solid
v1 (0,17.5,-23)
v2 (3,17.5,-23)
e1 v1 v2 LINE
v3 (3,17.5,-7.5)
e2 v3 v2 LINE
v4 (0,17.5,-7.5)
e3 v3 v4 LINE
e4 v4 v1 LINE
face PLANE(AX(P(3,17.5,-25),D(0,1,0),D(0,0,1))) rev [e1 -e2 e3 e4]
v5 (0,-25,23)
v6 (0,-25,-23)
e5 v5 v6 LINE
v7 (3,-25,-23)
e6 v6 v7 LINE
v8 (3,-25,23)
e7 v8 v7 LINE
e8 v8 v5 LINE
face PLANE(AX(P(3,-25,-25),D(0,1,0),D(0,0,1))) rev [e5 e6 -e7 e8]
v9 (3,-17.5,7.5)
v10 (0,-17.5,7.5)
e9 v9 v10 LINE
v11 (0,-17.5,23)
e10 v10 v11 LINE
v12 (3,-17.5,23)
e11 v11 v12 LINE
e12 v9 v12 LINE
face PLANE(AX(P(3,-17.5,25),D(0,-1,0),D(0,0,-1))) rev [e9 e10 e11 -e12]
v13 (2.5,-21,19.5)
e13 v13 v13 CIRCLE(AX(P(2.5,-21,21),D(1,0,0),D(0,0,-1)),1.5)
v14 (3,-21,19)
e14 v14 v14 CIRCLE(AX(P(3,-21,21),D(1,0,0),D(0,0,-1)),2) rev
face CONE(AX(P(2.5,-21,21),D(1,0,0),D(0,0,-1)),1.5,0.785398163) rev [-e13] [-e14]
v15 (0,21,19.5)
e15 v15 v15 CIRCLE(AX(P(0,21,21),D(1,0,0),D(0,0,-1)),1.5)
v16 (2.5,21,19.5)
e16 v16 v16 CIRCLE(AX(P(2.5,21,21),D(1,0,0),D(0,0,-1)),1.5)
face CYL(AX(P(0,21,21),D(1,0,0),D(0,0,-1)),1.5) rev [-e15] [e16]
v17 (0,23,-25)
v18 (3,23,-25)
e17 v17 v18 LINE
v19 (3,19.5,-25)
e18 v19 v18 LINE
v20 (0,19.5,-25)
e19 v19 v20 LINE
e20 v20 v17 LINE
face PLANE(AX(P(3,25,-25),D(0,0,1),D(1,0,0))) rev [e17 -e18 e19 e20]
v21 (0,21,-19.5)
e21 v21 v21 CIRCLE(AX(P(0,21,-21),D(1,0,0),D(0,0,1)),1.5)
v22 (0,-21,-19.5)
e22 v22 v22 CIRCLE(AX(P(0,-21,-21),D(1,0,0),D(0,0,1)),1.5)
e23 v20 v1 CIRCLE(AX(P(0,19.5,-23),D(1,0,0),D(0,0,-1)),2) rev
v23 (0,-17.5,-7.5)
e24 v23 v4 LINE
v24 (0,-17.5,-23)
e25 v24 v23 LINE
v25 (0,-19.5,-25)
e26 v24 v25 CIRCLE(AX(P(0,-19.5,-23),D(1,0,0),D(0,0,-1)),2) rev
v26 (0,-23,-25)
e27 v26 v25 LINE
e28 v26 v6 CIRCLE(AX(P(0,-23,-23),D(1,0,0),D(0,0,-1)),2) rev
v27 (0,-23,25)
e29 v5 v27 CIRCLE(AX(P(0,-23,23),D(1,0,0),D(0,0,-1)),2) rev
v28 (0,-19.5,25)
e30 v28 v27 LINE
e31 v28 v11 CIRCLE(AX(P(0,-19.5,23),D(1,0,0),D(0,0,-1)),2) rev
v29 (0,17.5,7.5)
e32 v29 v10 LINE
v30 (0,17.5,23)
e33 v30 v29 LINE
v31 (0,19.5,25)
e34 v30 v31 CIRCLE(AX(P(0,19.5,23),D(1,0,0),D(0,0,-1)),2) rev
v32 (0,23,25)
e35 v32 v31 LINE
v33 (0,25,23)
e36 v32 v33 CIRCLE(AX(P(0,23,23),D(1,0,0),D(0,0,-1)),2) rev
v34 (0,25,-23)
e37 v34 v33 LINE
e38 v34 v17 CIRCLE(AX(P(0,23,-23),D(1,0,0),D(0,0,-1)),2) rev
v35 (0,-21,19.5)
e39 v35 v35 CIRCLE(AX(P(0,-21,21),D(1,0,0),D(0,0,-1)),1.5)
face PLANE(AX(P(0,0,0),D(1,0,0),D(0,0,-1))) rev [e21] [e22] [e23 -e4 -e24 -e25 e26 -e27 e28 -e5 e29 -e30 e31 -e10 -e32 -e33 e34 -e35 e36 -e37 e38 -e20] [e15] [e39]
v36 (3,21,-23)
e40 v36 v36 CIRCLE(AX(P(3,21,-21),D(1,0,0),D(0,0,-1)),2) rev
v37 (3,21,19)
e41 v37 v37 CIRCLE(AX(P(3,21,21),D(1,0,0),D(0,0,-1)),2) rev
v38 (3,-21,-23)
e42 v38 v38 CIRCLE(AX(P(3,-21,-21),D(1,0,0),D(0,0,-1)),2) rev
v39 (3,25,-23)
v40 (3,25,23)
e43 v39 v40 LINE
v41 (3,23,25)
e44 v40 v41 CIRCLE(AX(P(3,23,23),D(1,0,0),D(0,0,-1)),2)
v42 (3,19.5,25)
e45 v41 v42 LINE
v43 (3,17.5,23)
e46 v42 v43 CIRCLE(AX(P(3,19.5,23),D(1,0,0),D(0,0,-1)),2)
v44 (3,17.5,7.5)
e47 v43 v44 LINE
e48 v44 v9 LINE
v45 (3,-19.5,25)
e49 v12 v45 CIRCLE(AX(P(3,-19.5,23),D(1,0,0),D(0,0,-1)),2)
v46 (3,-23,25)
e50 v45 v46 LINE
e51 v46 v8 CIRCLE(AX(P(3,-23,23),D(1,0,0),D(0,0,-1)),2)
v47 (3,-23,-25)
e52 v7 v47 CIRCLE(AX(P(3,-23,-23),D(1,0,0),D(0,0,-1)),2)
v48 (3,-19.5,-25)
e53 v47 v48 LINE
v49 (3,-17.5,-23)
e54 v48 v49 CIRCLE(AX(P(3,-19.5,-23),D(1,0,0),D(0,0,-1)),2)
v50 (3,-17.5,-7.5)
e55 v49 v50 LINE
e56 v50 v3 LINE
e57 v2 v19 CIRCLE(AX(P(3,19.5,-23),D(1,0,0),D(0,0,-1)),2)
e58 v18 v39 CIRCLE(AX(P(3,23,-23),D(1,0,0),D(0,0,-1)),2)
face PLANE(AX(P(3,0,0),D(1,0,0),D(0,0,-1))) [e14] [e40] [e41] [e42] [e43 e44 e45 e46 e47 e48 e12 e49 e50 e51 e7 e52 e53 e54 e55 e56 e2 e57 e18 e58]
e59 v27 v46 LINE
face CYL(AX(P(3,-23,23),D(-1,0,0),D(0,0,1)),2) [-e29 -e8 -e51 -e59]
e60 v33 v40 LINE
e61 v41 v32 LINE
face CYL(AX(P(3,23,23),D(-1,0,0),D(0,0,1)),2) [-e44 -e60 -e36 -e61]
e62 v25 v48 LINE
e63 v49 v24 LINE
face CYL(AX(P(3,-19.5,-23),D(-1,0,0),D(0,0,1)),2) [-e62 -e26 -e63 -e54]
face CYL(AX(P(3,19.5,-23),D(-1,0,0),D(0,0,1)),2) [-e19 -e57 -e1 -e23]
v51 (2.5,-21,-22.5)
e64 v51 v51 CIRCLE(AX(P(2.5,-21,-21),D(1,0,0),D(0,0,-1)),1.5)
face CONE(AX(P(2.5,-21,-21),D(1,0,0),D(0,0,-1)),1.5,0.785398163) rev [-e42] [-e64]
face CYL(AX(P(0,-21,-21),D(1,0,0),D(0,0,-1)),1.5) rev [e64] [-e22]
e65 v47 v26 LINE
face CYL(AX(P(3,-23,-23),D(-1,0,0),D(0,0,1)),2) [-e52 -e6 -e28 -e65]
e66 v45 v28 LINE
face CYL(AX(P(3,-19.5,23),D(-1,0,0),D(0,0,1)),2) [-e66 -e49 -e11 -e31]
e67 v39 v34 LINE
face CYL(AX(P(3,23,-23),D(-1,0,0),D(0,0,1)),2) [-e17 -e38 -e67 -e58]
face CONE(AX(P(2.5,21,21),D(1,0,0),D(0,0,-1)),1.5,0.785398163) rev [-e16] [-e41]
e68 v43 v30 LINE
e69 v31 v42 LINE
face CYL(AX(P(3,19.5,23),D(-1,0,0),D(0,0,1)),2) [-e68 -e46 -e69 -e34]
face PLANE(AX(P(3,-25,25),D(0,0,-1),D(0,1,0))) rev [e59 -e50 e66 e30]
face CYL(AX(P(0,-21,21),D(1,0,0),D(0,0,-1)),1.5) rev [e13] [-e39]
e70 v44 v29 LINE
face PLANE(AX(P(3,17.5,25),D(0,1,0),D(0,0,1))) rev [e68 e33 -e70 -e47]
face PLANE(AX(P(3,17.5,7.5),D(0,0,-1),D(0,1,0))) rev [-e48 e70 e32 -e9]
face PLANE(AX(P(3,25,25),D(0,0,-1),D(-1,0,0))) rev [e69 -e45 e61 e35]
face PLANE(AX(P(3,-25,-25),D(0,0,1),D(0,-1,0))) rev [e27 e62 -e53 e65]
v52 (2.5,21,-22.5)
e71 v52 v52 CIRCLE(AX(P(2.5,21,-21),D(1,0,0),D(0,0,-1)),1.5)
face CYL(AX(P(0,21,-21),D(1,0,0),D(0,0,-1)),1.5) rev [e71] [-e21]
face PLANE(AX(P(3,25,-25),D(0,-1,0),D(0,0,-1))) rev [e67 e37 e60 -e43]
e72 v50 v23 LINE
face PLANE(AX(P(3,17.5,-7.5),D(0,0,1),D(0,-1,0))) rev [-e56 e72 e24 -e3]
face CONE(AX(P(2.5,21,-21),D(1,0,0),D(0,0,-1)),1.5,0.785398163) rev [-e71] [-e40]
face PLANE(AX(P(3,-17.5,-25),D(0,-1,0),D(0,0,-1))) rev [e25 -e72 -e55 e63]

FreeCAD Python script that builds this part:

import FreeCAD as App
import Part
import Sketcher


def edges_at(feature, points):
    """Names of the edges that pass closest to the given points."""
    edges = feature.Shape.Edges
    near = lambda p: min(range(len(edges)), key=lambda i: edges[i].distToShape(Part.Vertex(*p))[0])
    return sorted({f"Edge{near(p) + 1}" for p in points})

doc = App.newDocument("Part")
params = doc.addObject("Spreadsheet::Sheet", "Params")
for row, (alias, value) in enumerate([
    ("sketch1_width", "35 mm"),
    ("sketch1_height", "50 mm"),
    ("sketch1_width2", "7.5 mm"),
    ("sketch1_height2", "17.5 mm"),
    ("pad1_length", "3 mm"),
    ("sketch2_diameter", "3 mm"),
    ("pocket1_length", "3 mm"),
    ("chamfer_size", "0.5 mm"),
    ("fillet_radius", "2 mm"),
], start=1):
    params.set(f"A{row}", alias)
    params.set(f"B{row}", "=" + value)
    params.setAlias(f"B{row}", alias)

body = doc.addObject("PartDesign::Body", "Body")

sketch1 = doc.addObject("Sketcher::SketchObject", "Sketch")
body.addObject(sketch1)
sketch1.AttachmentSupport = (doc.YZ_Plane, [""])
sketch1.MapMode = "FlatFace"
sketch1.addGeometry(Part.LineSegment(App.Vector(25, -25, 0), App.Vector(25, 25, 0)), False)
sketch1.addGeometry(Part.LineSegment(App.Vector(25, 25, 0), App.Vector(18, 25, 0)), False)
sketch1.addGeometry(Part.LineSegment(App.Vector(18, 25, 0), App.Vector(18, 8, 0)), False)
sketch1.addGeometry(Part.LineSegment(App.Vector(18, 8, 0), App.Vector(-18, 8, 0)), False)
sketch1.addGeometry(Part.LineSegment(App.Vector(-18, 8, 0), App.Vector(-18, 25, 0)), False)
sketch1.addGeometry(Part.LineSegment(App.Vector(-18, 25, 0), App.Vector(-25, 25, 0)), False)
sketch1.addGeometry(Part.LineSegment(App.Vector(-25, 25, 0), App.Vector(-25, -25, 0)), False)
sketch1.addGeometry(Part.LineSegment(App.Vector(-25, -25, 0), App.Vector(-18, -25, 0)), False)
sketch1.addGeometry(Part.LineSegment(App.Vector(-18, -25, 0), App.Vector(-18, -8, 0)), False)
sketch1.addGeometry(Part.LineSegment(App.Vector(-18, -8, 0), App.Vector(18, -8, 0)), False)
sketch1.addGeometry(Part.LineSegment(App.Vector(18, -8, 0), App.Vector(18, -25, 0)), False)
sketch1.addGeometry(Part.LineSegment(App.Vector(18, -25, 0), App.Vector(25, -25, 0)), False)
sketch1.addConstraint(Sketcher.Constraint("Coincident", 0, 2, 1, 1))
sketch1.addConstraint(Sketcher.Constraint("Coincident", 1, 2, 2, 1))
sketch1.addConstraint(Sketcher.Constraint("Coincident", 2, 2, 3, 1))
sketch1.addConstraint(Sketcher.Constraint("Coincident", 3, 2, 4, 1))
sketch1.addConstraint(Sketcher.Constraint("Coincident", 4, 2, 5, 1))
sketch1.addConstraint(Sketcher.Constraint("Coincident", 5, 2, 6, 1))
sketch1.addConstraint(Sketcher.Constraint("Coincident", 6, 2, 7, 1))
sketch1.addConstraint(Sketcher.Constraint("Coincident", 7, 2, 8, 1))
sketch1.addConstraint(Sketcher.Constraint("Coincident", 8, 2, 9, 1))
sketch1.addConstraint(Sketcher.Constraint("Coincident", 9, 2, 10, 1))
sketch1.addConstraint(Sketcher.Constraint("Coincident", 10, 2, 11, 1))
sketch1.addConstraint(Sketcher.Constraint("Coincident", 11, 2, 0, 1))
sketch1.addConstraint(Sketcher.Constraint("Vertical", 0))
sketch1.addConstraint(Sketcher.Constraint("Horizontal", 1))
sketch1.addConstraint(Sketcher.Constraint("Vertical", 2))
sketch1.addConstraint(Sketcher.Constraint("Horizontal", 3))
sketch1.addConstraint(Sketcher.Constraint("Vertical", 4))
sketch1.addConstraint(Sketcher.Constraint("Horizontal", 5))
sketch1.addConstraint(Sketcher.Constraint("Vertical", 6))
sketch1.addConstraint(Sketcher.Constraint("Horizontal", 7))
sketch1.addConstraint(Sketcher.Constraint("Vertical", 8))
sketch1.addConstraint(Sketcher.Constraint("Horizontal", 9))
sketch1.addConstraint(Sketcher.Constraint("Vertical", 10))
sketch1.addConstraint(Sketcher.Constraint("Horizontal", 11))
sketch1.addConstraint(Sketcher.Constraint("Symmetric", 0, 2, 6, 2, -1, 1))
sketch1.addConstraint(Sketcher.Constraint("Symmetric", 2, 2, 8, 2, -1, 1))
sketch1.addConstraint(Sketcher.Constraint("Symmetric", 4, 2, 10, 2, -1, 1))
sketch1.addConstraint(Sketcher.Constraint("Symmetric", 1, 2, 4, 2, -2))
sketch1.addConstraint(Sketcher.Constraint("DistanceX", 3, 2, 3, 1, 35.0))
sketch1.addConstraint(Sketcher.Constraint("DistanceY", 0, 1, 0, 2, 50.0))
sketch1.addConstraint(Sketcher.Constraint("DistanceX", 1, 2, 1, 1, 7.5))
sketch1.addConstraint(Sketcher.Constraint("DistanceY", 2, 2, 2, 1, 17.5))
sketch1.setExpression("Constraints[28]", "Params.sketch1_width")
sketch1.setExpression("Constraints[29]", "Params.sketch1_height")
sketch1.setExpression("Constraints[30]", "Params.sketch1_width2")
sketch1.setExpression("Constraints[31]", "Params.sketch1_height2")
pad1 = doc.addObject("PartDesign::Pad", "Pad")
body.addObject(pad1)
pad1.Profile = sketch1
pad1.setExpression("Length", "Params.pad1_length")

sketch2 = doc.addObject("Sketcher::SketchObject", "Sketch001")
body.addObject(sketch2)
sketch2.AttachmentSupport = (doc.YZ_Plane, [""])
sketch2.MapMode = "FlatFace"
sketch2.AttachmentOffset = App.Placement(App.Vector(0, 0, 3), App.Rotation())
sketch2.addGeometry(Part.Circle(App.Vector(21, 21, 0), App.Vector(0, 0, 1), 1.5), False)
sketch2.addGeometry(Part.Circle(App.Vector(-21, 21, 0), App.Vector(0, 0, 1), 1.5), False)
sketch2.addGeometry(Part.Circle(App.Vector(-21, -21, 0), App.Vector(0, 0, 1), 1.5), False)
sketch2.addGeometry(Part.Circle(App.Vector(21, -21, 0), App.Vector(0, 0, 1), 1.5), False)
sketch2.addConstraint(Sketcher.Constraint("Equal", 0, 1))
sketch2.addConstraint(Sketcher.Constraint("Equal", 1, 2))
sketch2.addConstraint(Sketcher.Constraint("Equal", 2, 3))
sketch2.addConstraint(Sketcher.Constraint("Symmetric", 0, 3, 2, 3, -1, 1))
sketch2.addConstraint(Sketcher.Constraint("Symmetric", 1, 3, 3, 3, -1, 1))
sketch2.addConstraint(Sketcher.Constraint("Symmetric", 0, 3, 1, 3, -2))
sketch2.addConstraint(Sketcher.Constraint("Diameter", 0, 3.0))
sketch2.addConstraint(Sketcher.Constraint("DistanceX", -1, 1, 0, 3, 21.0))
sketch2.addConstraint(Sketcher.Constraint("DistanceY", -1, 1, 0, 3, 21.0))
sketch2.setExpression("Constraints[6]", "Params.sketch2_diameter")
pocket1 = doc.addObject("PartDesign::Pocket", "Pocket")
body.addObject(pocket1)
pocket1.Profile = sketch2
pocket1.setExpression("Length", "Params.pocket1_length")
doc.recompute()

chamfer = doc.addObject("PartDesign::Chamfer", "Chamfer")
body.addObject(chamfer)
chamfer.Base = (pocket1, edges_at(pocket1, [
    (3, 21, -22.5),
    (3, -21, -22.5),
    (3, -21, 22.5),
    (3, 21, 22.5),
]))
chamfer.setExpression("Size", "Params.chamfer_size")
doc.recompute()

fillet = doc.addObject("PartDesign::Fillet", "Fillet")
body.addObject(fillet)
fillet.Base = (chamfer, edges_at(chamfer, [
    (1.5, 25, 25),
    (1.5, 25, -25),
    (1.5, 17.5, -25),
    (1.5, -17.5, -25),
    (1.5, -25, -25),
    (1.5, -25, 25),
    (1.5, -17.5, 25),
    (1.5, 17.5, 25),
]))
fillet.setExpression("Radius", "Params.fillet_radius")

doc.recompute()
